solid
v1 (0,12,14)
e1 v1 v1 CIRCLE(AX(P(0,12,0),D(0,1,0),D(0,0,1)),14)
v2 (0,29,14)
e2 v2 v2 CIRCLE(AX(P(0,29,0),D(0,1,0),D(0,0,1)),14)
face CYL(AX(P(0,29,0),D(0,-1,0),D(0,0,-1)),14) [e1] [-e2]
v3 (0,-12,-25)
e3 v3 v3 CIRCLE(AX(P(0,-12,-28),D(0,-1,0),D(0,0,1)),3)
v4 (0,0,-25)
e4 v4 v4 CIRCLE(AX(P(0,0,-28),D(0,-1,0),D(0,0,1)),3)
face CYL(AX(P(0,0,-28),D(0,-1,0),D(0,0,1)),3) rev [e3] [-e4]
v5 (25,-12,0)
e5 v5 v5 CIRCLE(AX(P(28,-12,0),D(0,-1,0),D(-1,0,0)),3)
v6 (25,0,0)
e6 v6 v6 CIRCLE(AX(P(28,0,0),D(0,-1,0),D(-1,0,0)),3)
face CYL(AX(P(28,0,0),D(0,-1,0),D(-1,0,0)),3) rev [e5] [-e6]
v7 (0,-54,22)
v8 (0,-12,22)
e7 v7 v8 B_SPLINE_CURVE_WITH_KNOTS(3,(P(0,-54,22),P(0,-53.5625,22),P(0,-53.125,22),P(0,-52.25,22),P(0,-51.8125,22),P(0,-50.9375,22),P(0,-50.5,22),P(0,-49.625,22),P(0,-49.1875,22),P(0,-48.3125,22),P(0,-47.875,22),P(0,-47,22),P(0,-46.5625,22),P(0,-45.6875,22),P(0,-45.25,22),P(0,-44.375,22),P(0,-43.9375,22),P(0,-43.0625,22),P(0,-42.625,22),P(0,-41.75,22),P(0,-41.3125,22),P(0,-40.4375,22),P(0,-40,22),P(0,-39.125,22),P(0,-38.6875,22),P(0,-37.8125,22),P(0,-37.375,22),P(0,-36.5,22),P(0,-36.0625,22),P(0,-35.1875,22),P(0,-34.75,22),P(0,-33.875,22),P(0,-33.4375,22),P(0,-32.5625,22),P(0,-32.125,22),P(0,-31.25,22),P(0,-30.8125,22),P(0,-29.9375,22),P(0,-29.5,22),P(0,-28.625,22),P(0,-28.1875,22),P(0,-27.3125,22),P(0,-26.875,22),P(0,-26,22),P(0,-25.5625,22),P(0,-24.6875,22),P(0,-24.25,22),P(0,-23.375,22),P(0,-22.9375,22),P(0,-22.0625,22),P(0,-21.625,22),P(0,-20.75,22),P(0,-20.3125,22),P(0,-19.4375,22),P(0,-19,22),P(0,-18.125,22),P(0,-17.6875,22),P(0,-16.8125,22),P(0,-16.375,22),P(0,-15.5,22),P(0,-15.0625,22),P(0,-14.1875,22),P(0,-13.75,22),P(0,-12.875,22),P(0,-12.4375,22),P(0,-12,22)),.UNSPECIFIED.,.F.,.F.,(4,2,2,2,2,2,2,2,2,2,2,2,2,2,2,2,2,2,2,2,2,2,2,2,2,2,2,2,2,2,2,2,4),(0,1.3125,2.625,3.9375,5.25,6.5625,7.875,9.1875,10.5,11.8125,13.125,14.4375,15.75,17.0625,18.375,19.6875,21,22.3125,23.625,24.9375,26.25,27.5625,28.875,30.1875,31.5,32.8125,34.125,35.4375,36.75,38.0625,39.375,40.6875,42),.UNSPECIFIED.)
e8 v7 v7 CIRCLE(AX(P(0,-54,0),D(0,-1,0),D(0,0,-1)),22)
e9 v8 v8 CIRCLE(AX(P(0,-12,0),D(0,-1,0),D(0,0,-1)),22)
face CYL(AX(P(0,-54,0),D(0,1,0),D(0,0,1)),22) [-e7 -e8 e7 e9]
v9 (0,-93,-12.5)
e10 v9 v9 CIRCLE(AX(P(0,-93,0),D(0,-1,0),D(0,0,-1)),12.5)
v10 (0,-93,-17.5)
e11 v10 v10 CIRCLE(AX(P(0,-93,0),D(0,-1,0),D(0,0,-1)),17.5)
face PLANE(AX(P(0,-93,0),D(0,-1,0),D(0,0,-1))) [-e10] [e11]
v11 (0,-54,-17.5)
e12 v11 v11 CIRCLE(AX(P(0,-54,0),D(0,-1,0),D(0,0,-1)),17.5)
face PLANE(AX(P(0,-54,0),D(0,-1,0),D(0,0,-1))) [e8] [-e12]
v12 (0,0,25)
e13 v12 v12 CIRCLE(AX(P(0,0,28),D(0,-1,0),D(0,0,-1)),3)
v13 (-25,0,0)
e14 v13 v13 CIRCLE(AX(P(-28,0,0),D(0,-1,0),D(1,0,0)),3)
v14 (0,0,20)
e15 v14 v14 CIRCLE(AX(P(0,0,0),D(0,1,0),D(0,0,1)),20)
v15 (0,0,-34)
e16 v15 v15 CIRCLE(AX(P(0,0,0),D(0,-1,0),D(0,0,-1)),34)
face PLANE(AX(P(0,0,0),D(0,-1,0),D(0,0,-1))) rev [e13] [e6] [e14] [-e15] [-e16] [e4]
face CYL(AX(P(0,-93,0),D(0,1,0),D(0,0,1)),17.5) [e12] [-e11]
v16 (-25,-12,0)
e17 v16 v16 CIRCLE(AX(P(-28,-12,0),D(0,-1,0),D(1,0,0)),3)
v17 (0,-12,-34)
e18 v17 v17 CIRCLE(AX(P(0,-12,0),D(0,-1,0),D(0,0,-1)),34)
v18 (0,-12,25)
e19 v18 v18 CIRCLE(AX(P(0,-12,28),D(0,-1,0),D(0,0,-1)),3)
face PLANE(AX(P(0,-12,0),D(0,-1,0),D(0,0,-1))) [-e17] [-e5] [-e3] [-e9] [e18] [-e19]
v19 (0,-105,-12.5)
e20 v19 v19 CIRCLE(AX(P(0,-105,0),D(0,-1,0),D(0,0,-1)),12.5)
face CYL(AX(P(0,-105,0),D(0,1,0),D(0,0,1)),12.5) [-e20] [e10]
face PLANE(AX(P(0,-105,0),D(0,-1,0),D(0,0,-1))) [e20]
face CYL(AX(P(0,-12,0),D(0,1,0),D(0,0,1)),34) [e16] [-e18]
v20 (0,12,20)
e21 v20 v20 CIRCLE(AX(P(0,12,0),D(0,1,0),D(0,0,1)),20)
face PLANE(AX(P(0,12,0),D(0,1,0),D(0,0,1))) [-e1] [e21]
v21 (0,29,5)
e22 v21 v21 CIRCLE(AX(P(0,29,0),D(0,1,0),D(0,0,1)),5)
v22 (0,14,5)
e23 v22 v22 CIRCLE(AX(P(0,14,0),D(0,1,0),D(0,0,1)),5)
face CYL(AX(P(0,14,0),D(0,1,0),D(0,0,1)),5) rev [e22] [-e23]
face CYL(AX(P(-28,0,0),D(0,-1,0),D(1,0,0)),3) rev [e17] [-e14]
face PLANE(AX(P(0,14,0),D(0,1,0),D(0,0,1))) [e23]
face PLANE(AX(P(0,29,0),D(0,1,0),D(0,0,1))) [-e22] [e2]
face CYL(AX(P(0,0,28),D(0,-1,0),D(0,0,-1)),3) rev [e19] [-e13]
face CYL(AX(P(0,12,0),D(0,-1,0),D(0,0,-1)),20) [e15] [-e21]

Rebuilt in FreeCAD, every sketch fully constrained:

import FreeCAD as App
import Part
import Sketcher

V = App.Vector

doc = App.newDocument("Part")
params = doc.addObject("Spreadsheet::Sheet", "Params")
for row, (alias, value) in enumerate([
    ("sketch1_diameter", "40 mm"),
    ("pad1_length", "12 mm"),
    ("sketch2_diameter", "68 mm"),
    ("pad2_length", "12 mm"),
    ("sketch3_diameter", "44 mm"),
    ("pad3_length", "42 mm"),
    ("sketch4_diameter", "35 mm"),
    ("pad4_length", "39 mm"),
    ("sketch5_diameter", "25 mm"),
    ("pad5_length", "12 mm"),
    ("sketch6_diameter", "32 mm"),
    ("sketch6_diameter2", "20 mm"),
    ("pad6_length", "18 mm"),
    ("sketch7_diameter", "6 mm"),
    ("pocket1_length", "12 mm"),
    ("sketch8_diameter", "28 mm"),
    ("pad7_length", "17 mm"),
    ("sketch9_diameter", "10 mm"),
    ("pocket2_length", "15 mm"),
], start=1):
    params.set(f"A{row}", alias)
    params.set(f"B{row}", "=" + value)
    params.setAlias(f"B{row}", alias)

body = doc.addObject("PartDesign::Body", "Body")

# Sketch on XZ plane
sketch1 = body.newObject("Sketcher::SketchObject", "Sketch")
sketch1.AttachmentSupport = (doc.getObject("XZ_Plane"), [""])
sketch1.MapMode = "FlatFace"
sketch1.addGeometry(Part.Circle(V(0, 0, 0), V(0, 0, 1), 20), False)
sketch1.addConstraint([
    Sketcher.Constraint("Coincident", 0, 3, -1, 1),
    Sketcher.Constraint("Diameter", 0, 40.0),
])
sketch1.setExpression("Constraints[1]", "Params.sketch1_diameter")
pad1 = body.newObject("PartDesign::Pad", "Pad")
pad1.Profile = sketch1
pad1.setExpression("Length", "Params.pad1_length")
pad1.Reversed = True

# Sketch on XZ plane
sketch2 = body.newObject("Sketcher::SketchObject", "Sketch001")
sketch2.AttachmentSupport = (doc.getObject("XZ_Plane"), [""])
sketch2.MapMode = "FlatFace"
sketch2.addGeometry(Part.Circle(V(0, 0, 0), V(0, 0, 1), 34), False)
sketch2.addConstraint([
    Sketcher.Constraint("Coincident", 0, 3, -1, 1),
    Sketcher.Constraint("Diameter", 0, 68.0),
])
sketch2.setExpression("Constraints[1]", "Params.sketch2_diameter")
pad2 = body.newObject("PartDesign::Pad", "Pad001")
pad2.Profile = sketch2
pad2.setExpression("Length", "Params.pad2_length")

# Sketch on XZ plane
sketch3 = body.newObject("Sketcher::SketchObject", "Sketch002")
sketch3.AttachmentSupport = (doc.getObject("XZ_Plane"), [""])
sketch3.MapMode = "FlatFace"
sketch3.AttachmentOffset = App.Placement(V(0, 0, 12), App.Rotation())
sketch3.addGeometry(Part.Circle(V(0, 0, 0), V(0, 0, 1), 22), False)
sketch3.addConstraint([
    Sketcher.Constraint("Coincident", 0, 3, -1, 1),
    Sketcher.Constraint("Diameter", 0, 44.0),
])
sketch3.setExpression("Constraints[1]", "Params.sketch3_diameter")
pad3 = body.newObject("PartDesign::Pad", "Pad002")
pad3.Profile = sketch3
pad3.setExpression("Length", "Params.pad3_length")

# Sketch on XZ plane
sketch4 = body.newObject("Sketcher::SketchObject", "Sketch003")
sketch4.AttachmentSupport = (doc.getObject("XZ_Plane"), [""])
sketch4.MapMode = "FlatFace"
sketch4.AttachmentOffset = App.Placement(V(0, 0, 54), App.Rotation())
sketch4.addGeometry(Part.Circle(V(0, 0, 0), V(0, 0, 1), 18), False)
sketch4.addConstraint([
    Sketcher.Constraint("Coincident", 0, 3, -1, 1),
    Sketcher.Constraint("Diameter", 0, 35.0),
])
sketch4.setExpression("Constraints[1]", "Params.sketch4_diameter")
pad4 = body.newObject("PartDesign::Pad", "Pad003")
pad4.Profile = sketch4
pad4.setExpression("Length", "Params.pad4_length")

# Sketch on XZ plane
sketch5 = body.newObject("Sketcher::SketchObject", "Sketch004")
sketch5.AttachmentSupport = (doc.getObject("XZ_Plane"), [""])
sketch5.MapMode = "FlatFace"
sketch5.AttachmentOffset = App.Placement(V(0, 0, 93), App.Rotation())
sketch5.addGeometry(Part.Circle(V(0, 0, 0), V(0, 0, 1), 12), False)
sketch5.addConstraint([
    Sketcher.Constraint("Coincident", 0, 3, -1, 1),
    Sketcher.Constraint("Diameter", 0, 25.0),
])
sketch5.setExpression("Constraints[1]", "Params.sketch5_diameter")
pad5 = body.newObject("PartDesign::Pad", "Pad004")
pad5.Profile = sketch5
pad5.setExpression("Length", "Params.pad5_length")

# Sketch on XZ plane
sketch6 = body.newObject("Sketcher::SketchObject", "Sketch005")
sketch6.AttachmentSupport = (doc.getObject("XZ_Plane"), [""])
sketch6.MapMode = "FlatFace"
sketch6.AttachmentOffset = App.Placement(V(0, 0, 12), App.Rotation())
sketch6.addGeometry([
    Part.Circle(V(0, 0, 0), V(0, 0, 1), 16),
    Part.Circle(V(0, 0, 0), V(0, 0, 1), 10),
], False)
sketch6.addConstraint([
    Sketcher.Constraint("Coincident", 0, 3, -1, 1),
    Sketcher.Constraint("Coincident", 1, 3, -1, 1),
    Sketcher.Constraint("Diameter", 0, 32.0),
    Sketcher.Constraint("Diameter", 1, 20.0),
])
sketch6.setExpression("Constraints[2]", "Params.sketch6_diameter")
sketch6.setExpression("Constraints[3]", "Params.sketch6_diameter2")
pad6 = body.newObject("PartDesign::Pad", "Pad005")
pad6.Profile = sketch6
pad6.setExpression("Length", "Params.pad6_length")

# Sketch on XZ plane
sketch7 = body.newObject("Sketcher::SketchObject", "Sketch006")
sketch7.AttachmentSupport = (doc.getObject("XZ_Plane"), [""])
sketch7.MapMode = "FlatFace"
sketch7.AttachmentOffset = App.Placement(V(0, 0, 12), App.Rotation())
sketch7.addGeometry(Part.Circle(V(0, 28, 0), V(0, 0, 1), 3), False)
sketch7.addConstraint([
    Sketcher.Constraint("PointOnObject", 0, 3, -2),
    Sketcher.Constraint("Diameter", 0, 6.0),
    Sketcher.Constraint("DistanceY", -1, 1, 0, 3, 28.0),
])
sketch7.setExpression("Constraints[1]", "Params.sketch7_diameter")
pocket1 = body.newObject("PartDesign::Pocket", "Pocket")
pocket1.Profile = sketch7
pocket1.setExpression("Length", "Params.pocket1_length")
doc.recompute()

polarpattern = body.newObject("PartDesign::PolarPattern", "PolarPattern")
polarpattern.Originals = [pocket1]
polarpattern.Axis = (doc.getObject("Y_Axis"), [""])
polarpattern.Angle = 360
polarpattern.Occurrences = 4
body.Tip = polarpattern

# Sketch on XZ plane
sketch8 = body.newObject("Sketcher::SketchObject", "Sketch007")
sketch8.AttachmentSupport = (doc.getObject("XZ_Plane"), [""])
sketch8.MapMode = "FlatFace"
sketch8.AttachmentOffset = App.Placement(V(0, 0, -12), App.Rotation())
sketch8.addGeometry(Part.Circle(V(0, 0, 0), V(0, 0, 1), 14), False)
sketch8.addConstraint([
    Sketcher.Constraint("Coincident", 0, 3, -1, 1),
    Sketcher.Constraint("Diameter", 0, 28.0),
])
sketch8.setExpression("Constraints[1]", "Params.sketch8_diameter")
pad7 = body.newObject("PartDesign::Pad", "Pad006")
pad7.Profile = sketch8
pad7.setExpression("Length", "Params.pad7_length")
pad7.Reversed = True

# Sketch on XZ plane
sketch9 = body.newObject("Sketcher::SketchObject", "Sketch008")
sketch9.AttachmentSupport = (doc.getObject("XZ_Plane"), [""])
sketch9.MapMode = "FlatFace"
sketch9.AttachmentOffset = App.Placement(V(0, 0, -29), App.Rotation())
sketch9.addGeometry(Part.Circle(V(0, 0, 0), V(0, 0, 1), 5), False)
sketch9.addConstraint([
    Sketcher.Constraint("Coincident", 0, 3, -1, 1),
    Sketcher.Constraint("Diameter", 0, 10.0),
])
sketch9.setExpression("Constraints[1]", "Params.sketch9_diameter")
pocket2 = body.newObject("PartDesign::Pocket", "Pocket001")
pocket2.Profile = sketch9
pocket2.setExpression("Length", "Params.pocket2_length")
pocket2.Reversed = True

doc.recompute()
